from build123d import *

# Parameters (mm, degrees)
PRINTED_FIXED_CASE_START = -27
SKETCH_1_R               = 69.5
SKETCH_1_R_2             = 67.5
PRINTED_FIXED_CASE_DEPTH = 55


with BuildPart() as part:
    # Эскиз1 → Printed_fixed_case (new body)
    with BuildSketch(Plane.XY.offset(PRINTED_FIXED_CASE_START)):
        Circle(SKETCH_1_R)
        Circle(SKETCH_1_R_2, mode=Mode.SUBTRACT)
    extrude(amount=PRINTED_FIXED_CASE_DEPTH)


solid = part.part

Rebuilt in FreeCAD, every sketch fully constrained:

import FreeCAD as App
import Part
import Sketcher
from FreeCAD import Vector
Q = App.Units.Quantity

doc = App.newDocument("Part")
body = doc.addObject("PartDesign::Body", "Body")

# Sketch on XY plane
sketch1 = body.newObject("Sketcher::SketchObject", "Sketch")
sketch1.AttachmentSupport = (doc.getObject("XY_Plane"), [""])
sketch1.MapMode = "FlatFace"
sketch1.AttachmentOffset = App.Placement(Vector(0, 0, -27), App.Rotation())
sketch1.addGeometry(Part.Circle(Vector(0, 0, 0), Vector(0, 0, 1), 69.5), False)
sketch1.addGeometry(Part.Circle(Vector(0, 0, 0), Vector(0, 0, 1), 67.5), False)
sketch1.addConstraint(Sketcher.Constraint("Coincident", 0, 3, -1, 1))
sketch1.addConstraint(Sketcher.Constraint("Coincident", 1, 3, -1, 1))
sketch1.addConstraint(Sketcher.Constraint("Diameter", 0, Q("139 mm")))
sketch1.addConstraint(Sketcher.Constraint("Diameter", 1, Q("135 mm")))
pad1 = body.newObject("PartDesign::Pad", "Pad")
pad1.Profile = sketch1
pad1.Length = 55

doc.recompute()
